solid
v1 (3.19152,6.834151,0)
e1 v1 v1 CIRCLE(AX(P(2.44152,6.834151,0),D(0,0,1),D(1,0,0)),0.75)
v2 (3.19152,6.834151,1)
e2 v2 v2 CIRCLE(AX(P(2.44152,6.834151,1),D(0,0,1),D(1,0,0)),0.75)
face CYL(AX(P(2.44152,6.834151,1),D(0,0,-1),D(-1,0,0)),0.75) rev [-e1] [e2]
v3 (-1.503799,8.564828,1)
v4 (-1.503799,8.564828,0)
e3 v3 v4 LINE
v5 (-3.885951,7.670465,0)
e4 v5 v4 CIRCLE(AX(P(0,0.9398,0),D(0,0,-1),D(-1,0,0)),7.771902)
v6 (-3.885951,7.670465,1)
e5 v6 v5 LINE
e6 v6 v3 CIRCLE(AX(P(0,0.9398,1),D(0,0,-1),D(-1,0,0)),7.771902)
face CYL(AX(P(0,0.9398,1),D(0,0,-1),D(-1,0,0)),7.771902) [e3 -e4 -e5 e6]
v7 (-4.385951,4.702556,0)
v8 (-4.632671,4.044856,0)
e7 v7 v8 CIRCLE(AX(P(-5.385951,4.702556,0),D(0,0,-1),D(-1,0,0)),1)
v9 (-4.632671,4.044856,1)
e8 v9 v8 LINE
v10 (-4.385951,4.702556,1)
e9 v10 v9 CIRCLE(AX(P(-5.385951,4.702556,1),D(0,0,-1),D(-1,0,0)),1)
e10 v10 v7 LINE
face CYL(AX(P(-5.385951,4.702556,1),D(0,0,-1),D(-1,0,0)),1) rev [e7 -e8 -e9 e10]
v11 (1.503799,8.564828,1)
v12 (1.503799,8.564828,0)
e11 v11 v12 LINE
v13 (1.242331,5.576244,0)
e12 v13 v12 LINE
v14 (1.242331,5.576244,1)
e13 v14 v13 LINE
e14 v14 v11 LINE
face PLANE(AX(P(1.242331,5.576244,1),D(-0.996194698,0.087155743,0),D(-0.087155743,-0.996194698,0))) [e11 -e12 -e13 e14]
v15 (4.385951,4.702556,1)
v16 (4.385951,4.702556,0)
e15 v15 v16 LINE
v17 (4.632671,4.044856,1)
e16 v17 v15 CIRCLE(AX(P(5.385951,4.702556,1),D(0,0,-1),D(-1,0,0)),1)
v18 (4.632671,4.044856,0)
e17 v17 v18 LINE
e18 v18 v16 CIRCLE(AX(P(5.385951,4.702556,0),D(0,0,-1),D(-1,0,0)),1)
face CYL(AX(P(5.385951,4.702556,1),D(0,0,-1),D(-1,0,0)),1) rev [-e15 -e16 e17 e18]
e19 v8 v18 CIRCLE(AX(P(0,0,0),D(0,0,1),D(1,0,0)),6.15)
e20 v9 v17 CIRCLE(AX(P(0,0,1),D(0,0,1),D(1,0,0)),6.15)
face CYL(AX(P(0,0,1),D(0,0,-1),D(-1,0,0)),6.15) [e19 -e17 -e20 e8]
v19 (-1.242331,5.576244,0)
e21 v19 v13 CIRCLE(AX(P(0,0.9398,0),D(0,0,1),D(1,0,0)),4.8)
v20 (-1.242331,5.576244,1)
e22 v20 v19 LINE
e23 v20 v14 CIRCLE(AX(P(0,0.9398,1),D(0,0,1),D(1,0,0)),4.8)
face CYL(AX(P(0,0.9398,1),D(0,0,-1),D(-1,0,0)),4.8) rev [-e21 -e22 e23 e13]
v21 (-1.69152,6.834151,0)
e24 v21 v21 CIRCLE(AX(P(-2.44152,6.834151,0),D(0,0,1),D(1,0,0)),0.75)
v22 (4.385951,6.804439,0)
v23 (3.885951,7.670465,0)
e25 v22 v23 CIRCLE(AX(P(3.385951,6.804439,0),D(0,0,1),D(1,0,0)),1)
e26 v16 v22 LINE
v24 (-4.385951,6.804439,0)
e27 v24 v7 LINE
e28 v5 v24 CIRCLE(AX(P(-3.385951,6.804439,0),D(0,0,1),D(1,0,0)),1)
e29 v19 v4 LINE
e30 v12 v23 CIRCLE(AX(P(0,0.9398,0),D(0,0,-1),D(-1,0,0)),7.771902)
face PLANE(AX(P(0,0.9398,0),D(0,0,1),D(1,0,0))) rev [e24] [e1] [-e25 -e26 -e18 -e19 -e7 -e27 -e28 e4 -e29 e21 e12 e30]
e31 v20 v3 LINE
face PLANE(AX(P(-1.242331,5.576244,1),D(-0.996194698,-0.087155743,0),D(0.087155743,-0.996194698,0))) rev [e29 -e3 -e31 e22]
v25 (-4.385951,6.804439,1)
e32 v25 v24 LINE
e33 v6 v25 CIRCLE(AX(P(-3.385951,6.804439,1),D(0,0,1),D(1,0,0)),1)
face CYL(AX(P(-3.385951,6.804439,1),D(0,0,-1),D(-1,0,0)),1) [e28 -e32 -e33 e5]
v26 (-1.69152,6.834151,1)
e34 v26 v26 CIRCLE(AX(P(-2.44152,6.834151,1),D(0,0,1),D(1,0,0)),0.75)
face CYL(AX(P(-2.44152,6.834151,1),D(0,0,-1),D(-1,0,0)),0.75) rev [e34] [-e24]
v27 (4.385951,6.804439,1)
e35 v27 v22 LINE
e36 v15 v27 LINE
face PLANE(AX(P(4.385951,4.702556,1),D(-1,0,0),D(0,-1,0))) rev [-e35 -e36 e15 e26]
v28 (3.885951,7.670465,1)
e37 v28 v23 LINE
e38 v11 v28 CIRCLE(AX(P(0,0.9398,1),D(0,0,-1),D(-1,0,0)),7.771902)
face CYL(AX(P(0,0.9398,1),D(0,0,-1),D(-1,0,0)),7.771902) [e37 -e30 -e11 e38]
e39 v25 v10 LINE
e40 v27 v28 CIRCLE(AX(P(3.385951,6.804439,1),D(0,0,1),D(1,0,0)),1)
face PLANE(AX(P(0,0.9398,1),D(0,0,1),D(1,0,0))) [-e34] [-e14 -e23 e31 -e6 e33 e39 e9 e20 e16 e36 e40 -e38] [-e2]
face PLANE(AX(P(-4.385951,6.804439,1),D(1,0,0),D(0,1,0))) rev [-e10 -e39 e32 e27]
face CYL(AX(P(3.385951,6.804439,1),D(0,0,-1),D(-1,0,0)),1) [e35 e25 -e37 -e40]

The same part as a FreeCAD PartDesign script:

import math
import FreeCAD as App
import Part
import Sketcher
from FreeCAD import Vector
Q = App.Units.Quantity

doc = App.newDocument("Part")
body = doc.addObject("PartDesign::Body", "Body")

# Sketch on XY plane
sketch1 = body.newObject("Sketcher::SketchObject", "Sketch")
sketch1.AttachmentSupport = (doc.getObject("XY_Plane"), [""])
sketch1.MapMode = "FlatFace"
sketch1.addGeometry([
    Part.LineSegment(Vector(-4.4, 6.8, 0), Vector(-4.4, 4.7, 0)),  # 0
    Part.ArcOfCircle(Part.Circle(Vector(-5.4, 4.7, 0), Vector(0, 0, 1), 1), math.radians(-41), math.radians(0)),  # 1
    Part.ArcOfCircle(Part.Circle(Vector(0, 0, 0), Vector(0, 0, 1), 6.2), math.radians(139), math.radians(401)),  # 2
    Part.ArcOfCircle(Part.Circle(Vector(5.4, 4.7, 0), Vector(0, 0, 1), 1), math.radians(180), math.radians(221)),  # 3
    Part.LineSegment(Vector(4.4, 4.7, 0), Vector(4.4, 6.8, 0)),  # 4
    Part.ArcOfCircle(Part.Circle(Vector(3.4, 6.8, 0), Vector(0, 0, 1), 1), math.radians(0), math.radians(60)),  # 5
    Part.ArcOfCircle(Part.Circle(Vector(0, 0.9, 0), Vector(0, 0, 1), 7.8), math.radians(60), math.radians(78.84)),  # 6
    Part.LineSegment(Vector(1.5, 8.6, 0), Vector(1.2, 5.6, 0)),  # 7
    Part.ArcOfCircle(Part.Circle(Vector(0, 0.9, 0), Vector(0, 0, 1), 4.8), math.radians(105), math.radians(435)),  # 8
    Part.LineSegment(Vector(-1.2, 5.6, 0), Vector(-1.5, 8.6, 0)),  # 9
    Part.ArcOfCircle(Part.Circle(Vector(0, 0.9, 0), Vector(0, 0, 1), 7.8), math.radians(101.16), math.radians(120)),  # 10
    Part.ArcOfCircle(Part.Circle(Vector(-3.4, 6.8, 0), Vector(0, 0, 1), 1), math.radians(120), math.radians(180)),  # 11
    Part.Circle(Vector(-2.4, 6.8, 0), Vector(0, 0, 1), 0.8),  # 12
    Part.Circle(Vector(2.4, 6.8, 0), Vector(0, 0, 1), 0.8),  # 13
], False)
sketch1.addConstraint([
    Sketcher.Constraint("Tangent", 0, 2, 1, 2),
    Sketcher.Constraint("Tangent", 1, 1, 2, 1),
    Sketcher.Constraint("Tangent", 2, 2, 3, 2),
    Sketcher.Constraint("Tangent", 3, 1, 4, 1),
    Sketcher.Constraint("Tangent", 4, 2, 5, 1),
    Sketcher.Constraint("Tangent", 5, 2, 6, 1),
    Sketcher.Constraint("Coincident", 6, 2, 7, 1),
    Sketcher.Constraint("Coincident", 7, 2, 8, 2),
    Sketcher.Constraint("Coincident", 8, 1, 9, 1),
    Sketcher.Constraint("Coincident", 9, 2, 10, 1),
    Sketcher.Constraint("Tangent", 10, 2, 11, 1),
    Sketcher.Constraint("Tangent", 11, 2, 0, 1),
    Sketcher.Constraint("Vertical", 0),
    Sketcher.Constraint("Vertical", 4),
    Sketcher.Constraint("Coincident", 2, 3, -1, 1),
    Sketcher.Constraint("Coincident", 8, 3, 6, 3),
    Sketcher.Constraint("Coincident", 10, 3, 6, 3),
    Sketcher.Constraint("Equal", 1, 3),
    Sketcher.Constraint("Equal", 3, 5),
    Sketcher.Constraint("Equal", 6, 10),
    Sketcher.Constraint("Equal", 5, 11),
    Sketcher.Constraint("Equal", 12, 13),
    Sketcher.Constraint("Symmetric", 5, 3, 11, 3, -2),
    Sketcher.Constraint("Symmetric", 12, 3, 13, 3, -2),
    Sketcher.Constraint("Horizontal", 7, 2, 8, 1),
    Sketcher.Constraint("Horizontal", 6, 2, 9, 2),
    Sketcher.Constraint("Radius", 1, Q("1 mm")),
    Sketcher.Constraint("Diameter", 12, Q("1.5 mm")),
    Sketcher.Constraint("Radius", 8, Q("4.8 mm")),
    Sketcher.Constraint("Angle", 7, Q("-95 deg")),
    Sketcher.Constraint("Radius", 2, Q("6.15 mm")),
    Sketcher.Constraint("Distance", 7, Q("3 mm")),
    Sketcher.Constraint("DistanceX", 5, 3, 5, 2, Q("0.5 mm")),
    Sketcher.Constraint("Radius", 6, Q("7.771902 mm")),
    Sketcher.Constraint("DistanceY", -1, 1, 6, 3, Q("0.9398 mm")),
    Sketcher.Constraint("DistanceX", 12, 3, -1, 1, Q("2.44152 mm")),
    Sketcher.Constraint("DistanceY", -1, 1, 12, 3, Q("6.834151 mm")),
])
pad1 = body.newObject("PartDesign::Pad", "Pad")
pad1.Profile = sketch1
pad1.Length = 1

doc.recompute()
